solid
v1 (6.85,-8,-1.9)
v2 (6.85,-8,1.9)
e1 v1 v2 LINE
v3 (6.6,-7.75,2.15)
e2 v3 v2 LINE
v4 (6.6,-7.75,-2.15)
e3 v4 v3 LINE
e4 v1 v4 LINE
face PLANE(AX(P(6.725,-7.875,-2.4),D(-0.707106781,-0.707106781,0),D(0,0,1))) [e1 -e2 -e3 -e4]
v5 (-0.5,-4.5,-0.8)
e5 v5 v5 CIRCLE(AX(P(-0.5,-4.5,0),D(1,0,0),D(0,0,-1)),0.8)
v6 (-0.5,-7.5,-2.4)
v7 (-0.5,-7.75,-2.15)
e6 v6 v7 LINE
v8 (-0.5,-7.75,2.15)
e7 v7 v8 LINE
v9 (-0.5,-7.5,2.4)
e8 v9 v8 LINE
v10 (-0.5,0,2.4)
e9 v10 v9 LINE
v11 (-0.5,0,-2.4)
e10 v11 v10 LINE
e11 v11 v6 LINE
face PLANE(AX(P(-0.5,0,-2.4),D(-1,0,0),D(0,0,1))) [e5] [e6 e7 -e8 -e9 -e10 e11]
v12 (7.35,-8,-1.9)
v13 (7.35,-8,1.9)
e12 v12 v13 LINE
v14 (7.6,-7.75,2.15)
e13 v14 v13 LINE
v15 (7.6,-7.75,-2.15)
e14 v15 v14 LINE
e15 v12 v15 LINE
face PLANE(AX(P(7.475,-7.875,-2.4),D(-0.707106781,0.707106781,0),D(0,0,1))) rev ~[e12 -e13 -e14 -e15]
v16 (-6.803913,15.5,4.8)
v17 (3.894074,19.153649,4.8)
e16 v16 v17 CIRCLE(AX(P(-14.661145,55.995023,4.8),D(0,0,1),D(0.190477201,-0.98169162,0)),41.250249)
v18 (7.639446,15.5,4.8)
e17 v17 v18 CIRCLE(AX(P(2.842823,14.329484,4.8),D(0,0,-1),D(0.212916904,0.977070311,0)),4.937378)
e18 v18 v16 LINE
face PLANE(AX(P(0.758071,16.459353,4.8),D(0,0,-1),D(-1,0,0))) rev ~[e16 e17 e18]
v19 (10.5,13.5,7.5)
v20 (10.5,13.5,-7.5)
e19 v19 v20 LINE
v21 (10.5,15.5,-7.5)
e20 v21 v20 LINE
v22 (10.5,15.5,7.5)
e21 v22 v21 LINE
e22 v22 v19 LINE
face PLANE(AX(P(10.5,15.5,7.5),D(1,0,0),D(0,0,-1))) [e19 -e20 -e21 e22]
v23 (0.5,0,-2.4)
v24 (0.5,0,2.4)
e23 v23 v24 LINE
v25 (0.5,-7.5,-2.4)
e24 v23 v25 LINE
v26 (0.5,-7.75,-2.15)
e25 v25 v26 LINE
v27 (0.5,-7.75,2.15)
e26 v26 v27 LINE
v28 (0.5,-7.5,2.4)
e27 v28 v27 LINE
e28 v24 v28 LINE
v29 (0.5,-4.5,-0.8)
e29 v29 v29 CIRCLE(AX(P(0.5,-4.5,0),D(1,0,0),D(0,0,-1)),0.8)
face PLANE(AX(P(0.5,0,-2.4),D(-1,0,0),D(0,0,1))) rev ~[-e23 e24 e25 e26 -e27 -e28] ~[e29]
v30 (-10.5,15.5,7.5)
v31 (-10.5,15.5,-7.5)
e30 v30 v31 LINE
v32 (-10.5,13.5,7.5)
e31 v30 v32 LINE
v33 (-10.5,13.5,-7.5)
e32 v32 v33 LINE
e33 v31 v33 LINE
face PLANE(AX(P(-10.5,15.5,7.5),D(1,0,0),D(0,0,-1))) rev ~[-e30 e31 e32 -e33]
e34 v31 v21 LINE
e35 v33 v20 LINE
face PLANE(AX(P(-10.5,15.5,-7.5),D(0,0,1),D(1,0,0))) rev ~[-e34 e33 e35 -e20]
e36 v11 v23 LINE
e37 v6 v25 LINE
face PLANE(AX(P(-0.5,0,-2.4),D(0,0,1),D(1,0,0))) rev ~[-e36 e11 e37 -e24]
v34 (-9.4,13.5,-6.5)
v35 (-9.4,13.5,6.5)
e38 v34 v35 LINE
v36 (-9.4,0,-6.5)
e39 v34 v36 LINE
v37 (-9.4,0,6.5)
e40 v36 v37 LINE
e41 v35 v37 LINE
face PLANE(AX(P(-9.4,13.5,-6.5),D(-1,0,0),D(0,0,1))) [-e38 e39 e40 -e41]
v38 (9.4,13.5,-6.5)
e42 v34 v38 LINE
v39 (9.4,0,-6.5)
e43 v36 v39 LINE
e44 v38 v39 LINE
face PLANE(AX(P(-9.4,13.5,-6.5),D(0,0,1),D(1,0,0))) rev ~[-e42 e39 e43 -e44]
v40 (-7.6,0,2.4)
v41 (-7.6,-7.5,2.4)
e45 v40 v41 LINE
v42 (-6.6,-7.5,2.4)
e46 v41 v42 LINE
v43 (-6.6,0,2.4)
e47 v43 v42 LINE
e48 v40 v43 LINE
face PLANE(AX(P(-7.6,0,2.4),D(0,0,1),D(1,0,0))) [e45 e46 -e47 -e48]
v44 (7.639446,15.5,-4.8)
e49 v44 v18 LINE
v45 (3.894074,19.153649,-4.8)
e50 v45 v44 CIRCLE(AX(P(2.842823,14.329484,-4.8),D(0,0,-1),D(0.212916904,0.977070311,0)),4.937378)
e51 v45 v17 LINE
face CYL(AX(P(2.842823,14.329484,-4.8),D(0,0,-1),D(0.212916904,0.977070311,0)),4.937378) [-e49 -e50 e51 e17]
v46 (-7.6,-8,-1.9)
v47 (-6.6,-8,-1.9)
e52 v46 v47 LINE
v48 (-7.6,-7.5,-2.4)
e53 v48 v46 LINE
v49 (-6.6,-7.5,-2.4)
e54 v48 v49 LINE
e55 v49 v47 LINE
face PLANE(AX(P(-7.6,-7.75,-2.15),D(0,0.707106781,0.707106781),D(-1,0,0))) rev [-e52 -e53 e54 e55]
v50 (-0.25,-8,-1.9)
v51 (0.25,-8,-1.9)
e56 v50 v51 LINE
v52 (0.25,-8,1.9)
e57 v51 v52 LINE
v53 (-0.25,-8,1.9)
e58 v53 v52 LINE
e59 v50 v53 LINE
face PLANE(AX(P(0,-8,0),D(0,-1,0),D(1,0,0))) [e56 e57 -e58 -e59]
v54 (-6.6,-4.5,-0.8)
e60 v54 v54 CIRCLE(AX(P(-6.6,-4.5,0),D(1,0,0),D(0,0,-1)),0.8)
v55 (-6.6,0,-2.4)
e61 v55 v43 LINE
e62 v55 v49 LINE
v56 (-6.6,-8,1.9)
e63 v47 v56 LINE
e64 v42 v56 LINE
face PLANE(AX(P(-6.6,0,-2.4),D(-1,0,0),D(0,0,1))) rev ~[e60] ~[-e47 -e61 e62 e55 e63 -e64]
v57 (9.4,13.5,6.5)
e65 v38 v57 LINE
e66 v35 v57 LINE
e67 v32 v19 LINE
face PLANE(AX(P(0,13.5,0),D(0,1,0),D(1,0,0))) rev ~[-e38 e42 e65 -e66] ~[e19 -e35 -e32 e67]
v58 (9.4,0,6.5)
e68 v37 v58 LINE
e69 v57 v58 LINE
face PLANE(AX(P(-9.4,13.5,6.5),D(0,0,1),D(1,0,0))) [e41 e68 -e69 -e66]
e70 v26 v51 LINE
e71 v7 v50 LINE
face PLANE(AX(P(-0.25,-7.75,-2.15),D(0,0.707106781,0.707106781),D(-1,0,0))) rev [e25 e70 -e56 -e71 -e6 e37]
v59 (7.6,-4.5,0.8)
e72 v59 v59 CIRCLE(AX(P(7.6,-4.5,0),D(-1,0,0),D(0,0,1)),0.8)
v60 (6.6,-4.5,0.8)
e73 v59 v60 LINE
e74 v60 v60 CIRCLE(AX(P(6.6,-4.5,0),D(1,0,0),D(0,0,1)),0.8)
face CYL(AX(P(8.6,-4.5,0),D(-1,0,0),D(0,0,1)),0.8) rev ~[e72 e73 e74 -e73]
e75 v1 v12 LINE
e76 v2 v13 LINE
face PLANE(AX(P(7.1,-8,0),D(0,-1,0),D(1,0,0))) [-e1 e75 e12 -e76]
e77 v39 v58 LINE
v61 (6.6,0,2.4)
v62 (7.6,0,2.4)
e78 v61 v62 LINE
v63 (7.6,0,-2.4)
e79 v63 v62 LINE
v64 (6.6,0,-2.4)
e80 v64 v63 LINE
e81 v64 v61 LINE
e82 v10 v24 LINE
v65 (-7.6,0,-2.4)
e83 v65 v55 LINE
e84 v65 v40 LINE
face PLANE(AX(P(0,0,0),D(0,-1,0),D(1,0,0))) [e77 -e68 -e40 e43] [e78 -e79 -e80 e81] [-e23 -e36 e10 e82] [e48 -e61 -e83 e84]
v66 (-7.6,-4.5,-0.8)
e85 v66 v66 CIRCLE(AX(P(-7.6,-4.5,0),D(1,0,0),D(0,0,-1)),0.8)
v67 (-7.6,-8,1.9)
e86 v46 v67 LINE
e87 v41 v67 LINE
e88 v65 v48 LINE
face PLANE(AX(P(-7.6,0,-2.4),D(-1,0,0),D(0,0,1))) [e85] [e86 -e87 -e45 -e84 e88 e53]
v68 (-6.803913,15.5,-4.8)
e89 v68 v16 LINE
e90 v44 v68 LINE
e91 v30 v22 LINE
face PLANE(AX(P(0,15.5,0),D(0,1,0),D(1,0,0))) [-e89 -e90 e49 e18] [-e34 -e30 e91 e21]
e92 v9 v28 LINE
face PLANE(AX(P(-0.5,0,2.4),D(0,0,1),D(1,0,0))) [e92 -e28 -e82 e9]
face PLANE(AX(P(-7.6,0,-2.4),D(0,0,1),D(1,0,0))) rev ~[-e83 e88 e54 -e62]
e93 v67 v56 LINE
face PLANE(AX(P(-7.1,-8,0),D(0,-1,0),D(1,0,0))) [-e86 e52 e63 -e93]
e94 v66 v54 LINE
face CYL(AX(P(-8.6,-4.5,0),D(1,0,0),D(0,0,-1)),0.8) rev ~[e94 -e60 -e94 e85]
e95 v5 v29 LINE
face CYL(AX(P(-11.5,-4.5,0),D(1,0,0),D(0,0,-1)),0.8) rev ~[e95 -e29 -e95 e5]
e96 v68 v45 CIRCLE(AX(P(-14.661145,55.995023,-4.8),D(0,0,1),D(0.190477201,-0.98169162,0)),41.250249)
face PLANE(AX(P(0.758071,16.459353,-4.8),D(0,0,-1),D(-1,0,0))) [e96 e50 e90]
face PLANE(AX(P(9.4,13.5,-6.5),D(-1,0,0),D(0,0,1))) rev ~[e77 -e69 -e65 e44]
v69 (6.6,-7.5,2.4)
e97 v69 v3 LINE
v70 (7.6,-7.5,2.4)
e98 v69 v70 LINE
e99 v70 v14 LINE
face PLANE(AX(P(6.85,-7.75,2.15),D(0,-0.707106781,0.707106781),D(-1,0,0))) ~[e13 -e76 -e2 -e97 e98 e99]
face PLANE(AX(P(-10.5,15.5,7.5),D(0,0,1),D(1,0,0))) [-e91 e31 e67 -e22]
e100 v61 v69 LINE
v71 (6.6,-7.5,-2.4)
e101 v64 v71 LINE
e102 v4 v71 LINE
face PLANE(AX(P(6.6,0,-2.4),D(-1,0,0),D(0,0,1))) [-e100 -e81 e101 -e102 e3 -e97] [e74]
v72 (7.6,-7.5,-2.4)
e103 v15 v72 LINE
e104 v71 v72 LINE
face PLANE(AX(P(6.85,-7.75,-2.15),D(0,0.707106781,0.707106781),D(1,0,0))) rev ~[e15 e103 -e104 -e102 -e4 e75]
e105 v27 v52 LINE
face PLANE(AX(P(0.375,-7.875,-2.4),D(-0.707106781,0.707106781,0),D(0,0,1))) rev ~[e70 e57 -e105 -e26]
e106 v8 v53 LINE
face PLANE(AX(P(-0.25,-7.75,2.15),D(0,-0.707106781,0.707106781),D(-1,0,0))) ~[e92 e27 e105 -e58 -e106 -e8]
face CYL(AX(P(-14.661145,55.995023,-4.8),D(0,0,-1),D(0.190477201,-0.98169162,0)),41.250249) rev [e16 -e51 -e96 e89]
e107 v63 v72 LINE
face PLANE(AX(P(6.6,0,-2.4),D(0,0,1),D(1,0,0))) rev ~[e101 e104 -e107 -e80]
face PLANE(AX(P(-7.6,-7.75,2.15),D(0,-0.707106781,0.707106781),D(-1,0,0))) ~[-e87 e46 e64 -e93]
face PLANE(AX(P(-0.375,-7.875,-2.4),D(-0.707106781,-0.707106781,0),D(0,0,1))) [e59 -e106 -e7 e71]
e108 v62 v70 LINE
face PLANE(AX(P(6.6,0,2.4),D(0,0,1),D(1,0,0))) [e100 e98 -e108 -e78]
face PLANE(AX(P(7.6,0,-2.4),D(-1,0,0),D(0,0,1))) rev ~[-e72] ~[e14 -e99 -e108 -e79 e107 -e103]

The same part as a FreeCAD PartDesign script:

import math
import FreeCAD as App
import Part
import Sketcher
from FreeCAD import Vector


def edges_at(feature, points):
    """Names of the edges that pass closest to the given points."""
    edges = feature.Shape.Edges
    near = lambda p: min(range(len(edges)), key=lambda i: edges[i].distToShape(Part.Vertex(*p))[0])
    return sorted({f"Edge{near(p) + 1}" for p in points})


def add_polygon(sketch, points):
    """Adds a closed chain of lines whose ends are joined by coincident constraints."""
    first, n = sketch.GeometryCount, len(points)
    for a, b in zip(points, points[1:] + points[:1]):
        sketch.addGeometry(Part.LineSegment(App.Vector(*a, 0), App.Vector(*b, 0)), False)
    for i in range(n):
        sketch.addConstraint(Sketcher.Constraint("Coincident", first + i, 2, first + (i + 1) % n, 1))

doc = App.newDocument("Part")
body = doc.addObject("PartDesign::Body", "Body")

sketch1 = body.newObject("Sketcher::SketchObject", "Sketch")
sketch1.AttachmentSupport = (doc.getObject("XY_Plane"), [""])
sketch1.MapMode = "FlatFace"
sketch1.AttachmentOffset = App.Placement(Vector(0, 0, -4.8), App.Rotation())
sketch1.addGeometry(Part.LineSegment(Vector(7.639446, 15.5, 0), Vector(-6.803913, 15.5, 0)), False)
sketch1.addGeometry(Part.ArcOfCircle(Part.Circle(Vector(-14.661145, 55.995023, 0), Vector(0, 0, 1), 41.250249), math.radians(-79.019366), math.radians(-63.267814)), False)
sketch1.addGeometry(Part.ArcOfCircle(Part.Circle(Vector(2.842823, 14.329484, 0), Vector(0, 0, 1), 4.937378), math.radians(13.713817), math.radians(77.706655)), False)
sketch1.addConstraint(Sketcher.Constraint("Coincident", 0, 2, 1, 1))
sketch1.addConstraint(Sketcher.Constraint("Coincident", 1, 2, 2, 2))
sketch1.addConstraint(Sketcher.Constraint("Coincident", 2, 1, 0, 1))
sketch1.addConstraint(Sketcher.Constraint("Horizontal", 0))
sketch1.addConstraint(Sketcher.Constraint("DistanceY", -1, 1, 0, 2, 15.5))
sketch1.addConstraint(Sketcher.Constraint("Radius", 1, 41.250249))
sketch1.addConstraint(Sketcher.Constraint("Radius", 2, 4.937378))
sketch1.addConstraint(Sketcher.Constraint("DistanceX", 0, 2, 0, 1, 14.443359))
sketch1.addConstraint(Sketcher.Constraint("DistanceY", -1, 1, 1, 2, 19.153649))
sketch1.addConstraint(Sketcher.Constraint("DistanceY", 2, 3, 1, 3, 41.66554))
sketch1.addConstraint(Sketcher.Constraint("DistanceX", 1, 3, -1, 1, 14.661145))
pad1 = body.newObject("PartDesign::Pad", "Pad")
pad1.Profile = sketch1
pad1.Length = 9.6

sketch2 = body.newObject("Sketcher::SketchObject", "Sketch001")
sketch2.AttachmentSupport = (doc.getObject("XZ_Plane"), [""])
sketch2.MapMode = "FlatFace"
sketch2.AttachmentOffset = App.Placement(Vector(0, 0, -15.5), App.Rotation())
add_polygon(sketch2, [(-10.5, -7.5), (-10.5, 7.5), (10.5, 7.5), (10.5, -7.5)])
sketch2.addConstraint(Sketcher.Constraint("Vertical", 0))
sketch2.addConstraint(Sketcher.Constraint("Horizontal", 1))
sketch2.addConstraint(Sketcher.Constraint("Vertical", 2))
sketch2.addConstraint(Sketcher.Constraint("Horizontal", 3))
sketch2.addConstraint(Sketcher.Constraint("Symmetric", 0, 2, 2, 2, -1, 1))
sketch2.addConstraint(Sketcher.Constraint("DistanceX", 1, 1, 1, 2, 21.0))
sketch2.addConstraint(Sketcher.Constraint("DistanceY", 0, 1, 0, 2, 15.0))
pad2 = body.newObject("PartDesign::Pad", "Pad001")
pad2.Profile = sketch2
pad2.Length = 2

sketch3 = body.newObject("Sketcher::SketchObject", "Sketch002")
sketch3.AttachmentSupport = (doc.getObject("XZ_Plane"), [""])
sketch3.MapMode = "FlatFace"
sketch3.AttachmentOffset = App.Placement(Vector(0, 0, -13.5), App.Rotation())
add_polygon(sketch3, [(-9.4, 6.5), (-9.4, -6.5), (9.4, -6.5), (9.4, 6.5)])
sketch3.addConstraint(Sketcher.Constraint("Vertical", 0))
sketch3.addConstraint(Sketcher.Constraint("Horizontal", 1))
sketch3.addConstraint(Sketcher.Constraint("Vertical", 2))
sketch3.addConstraint(Sketcher.Constraint("Horizontal", 3))
sketch3.addConstraint(Sketcher.Constraint("Symmetric", 0, 2, 2, 2, -1, 1))
sketch3.addConstraint(Sketcher.Constraint("DistanceY", 0, 2, 0, 1, 13.0))
sketch3.addConstraint(Sketcher.Constraint("DistanceX", 1, 1, 1, 2, 18.8))
pad3 = body.newObject("PartDesign::Pad", "Pad002")
pad3.Profile = sketch3
pad3.Length = 13.5

sketch4 = body.newObject("Sketcher::SketchObject", "Sketch003")
sketch4.AttachmentSupport = (doc.getObject("XZ_Plane"), [""])
sketch4.MapMode = "FlatFace"
add_polygon(sketch4, [(-0.5, 2.4), (-0.5, -2.4), (0.5, -2.4), (0.5, 2.4)])
sketch4.addConstraint(Sketcher.Constraint("Vertical", 0))
sketch4.addConstraint(Sketcher.Constraint("Horizontal", 1))
sketch4.addConstraint(Sketcher.Constraint("Vertical", 2))
sketch4.addConstraint(Sketcher.Constraint("Horizontal", 3))
sketch4.addConstraint(Sketcher.Constraint("Symmetric", 0, 2, 2, 2, -1, 1))
sketch4.addConstraint(Sketcher.Constraint("DistanceX", 1, 1, 1, 2, 1.0))
sketch4.addConstraint(Sketcher.Constraint("DistanceY", 0, 2, 0, 1, 4.8))
pad4 = body.newObject("PartDesign::Pad", "Pad003")
pad4.Profile = sketch4
pad4.Length = 8

sketch5 = body.newObject("Sketcher::SketchObject", "Sketch004")
sketch5.AttachmentSupport = (doc.getObject("XZ_Plane"), [""])
sketch5.MapMode = "FlatFace"
add_polygon(sketch5, [(6.6, 2.4), (6.6, -2.4), (7.6, -2.4), (7.6, 2.4)])
sketch5.addConstraint(Sketcher.Constraint("Vertical", 0))
sketch5.addConstraint(Sketcher.Constraint("Horizontal", 1))
sketch5.addConstraint(Sketcher.Constraint("Vertical", 2))
sketch5.addConstraint(Sketcher.Constraint("Horizontal", 3))
sketch5.addConstraint(Sketcher.Constraint("DistanceX", 1, 1, 1, 2, 1.0))
sketch5.addConstraint(Sketcher.Constraint("DistanceY", 0, 2, 0, 1, 4.8))
sketch5.addConstraint(Sketcher.Constraint("DistanceX", -1, 1, 0, 2, 6.6))
sketch5.addConstraint(Sketcher.Constraint("DistanceY", 0, 2, -1, 1, 2.4))
pad5 = body.newObject("PartDesign::Pad", "Pad004")
pad5.Profile = sketch5
pad5.Length = 8

sketch6 = body.newObject("Sketcher::SketchObject", "Sketch005")
sketch6.AttachmentSupport = (doc.getObject("XZ_Plane"), [""])
sketch6.MapMode = "FlatFace"
add_polygon(sketch6, [(-7.6, 2.4), (-7.6, -2.4), (-6.6, -2.4), (-6.6, 2.4)])
sketch6.addConstraint(Sketcher.Constraint("Vertical", 0))
sketch6.addConstraint(Sketcher.Constraint("Horizontal", 1))
sketch6.addConstraint(Sketcher.Constraint("Vertical", 2))
sketch6.addConstraint(Sketcher.Constraint("Horizontal", 3))
sketch6.addConstraint(Sketcher.Constraint("DistanceX", 1, 1, 1, 2, 1.0))
sketch6.addConstraint(Sketcher.Constraint("DistanceY", 0, 2, 0, 1, 4.8))
sketch6.addConstraint(Sketcher.Constraint("DistanceX", 0, 2, -1, 1, 7.6))
sketch6.addConstraint(Sketcher.Constraint("DistanceY", 0, 2, -1, 1, 2.4))
pad6 = body.newObject("PartDesign::Pad", "Pad005")
pad6.Profile = sketch6
pad6.Length = 8

sketch7 = body.newObject("Sketcher::SketchObject", "Sketch006")
sketch7.AttachmentSupport = (doc.getObject("YZ_Plane"), [""])
sketch7.MapMode = "FlatFace"
sketch7.AttachmentOffset = App.Placement(Vector(0, 0, -7.6), App.Rotation())
sketch7.addGeometry(Part.Circle(Vector(-4.5, 0, 0), Vector(0, 0, 1), 0.8), False)
sketch7.addConstraint(Sketcher.Constraint("PointOnObject", 0, 3, -1))
sketch7.addConstraint(Sketcher.Constraint("Diameter", 0, 1.6))
sketch7.addConstraint(Sketcher.Constraint("DistanceX", 0, 3, -1, 1, 4.5))
doc.recompute()
hole = body.newObject("PartDesign::Hole", "Hole")
hole.Profile = sketch7
hole.ThreadType = "None"
hole.Diameter = 1.6
hole.DepthType = "Dimension"
hole.Depth = 1
hole.DrillPoint = "Flat"
hole.Reversed = True

sketch8 = body.newObject("Sketcher::SketchObject", "Sketch007")
sketch8.AttachmentSupport = (doc.getObject("YZ_Plane"), [""])
sketch8.MapMode = "FlatFace"
sketch8.AttachmentOffset = App.Placement(Vector(0, 0, 7.6), App.Rotation())
sketch8.addGeometry(Part.Circle(Vector(-4.5, 0, 0), Vector(0, 0, 1), 0.8), False)
sketch8.addConstraint(Sketcher.Constraint("PointOnObject", 0, 3, -1))
sketch8.addConstraint(Sketcher.Constraint("Diameter", 0, 1.6))
sketch8.addConstraint(Sketcher.Constraint("DistanceX", 0, 3, -1, 1, 4.5))
doc.recompute()
hole2 = body.newObject("PartDesign::Hole", "Hole001")
hole2.Profile = sketch8
hole2.ThreadType = "None"
hole2.Diameter = 1.6
hole2.DepthType = "Dimension"
hole2.Depth = 1
hole2.DrillPoint = "Flat"

sketch9 = body.newObject("Sketcher::SketchObject", "Sketch008")
sketch9.AttachmentSupport = (doc.getObject("YZ_Plane"), [""])
sketch9.MapMode = "FlatFace"
sketch9.AttachmentOffset = App.Placement(Vector(0, 0, -0.5), App.Rotation())
sketch9.addGeometry(Part.Circle(Vector(-4.5, 0, 0), Vector(0, 0, 1), 0.8), False)
sketch9.addConstraint(Sketcher.Constraint("PointOnObject", 0, 3, -1))
sketch9.addConstraint(Sketcher.Constraint("Diameter", 0, 1.6))
sketch9.addConstraint(Sketcher.Constraint("DistanceX", 0, 3, -1, 1, 4.5))
doc.recompute()
hole3 = body.newObject("PartDesign::Hole", "Hole002")
hole3.Profile = sketch9
hole3.ThreadType = "None"
hole3.Diameter = 1.6
hole3.DepthType = "Dimension"
hole3.Depth = 11
hole3.DrillPoint = "Flat"
hole3.Reversed = True
doc.recompute()

chamfer = body.newObject("PartDesign::Chamfer", "Chamfer")
chamfer.Base = (hole3, edges_at(hole3, [
    (-0.5, -8, 0),
    (0.5, -8, 0),
    (6.6, -8, 0),
    (7.6, -8, 0),
]))
chamfer.Size = 0.25
doc.recompute()

chamfer2 = body.newObject("PartDesign::Chamfer", "Chamfer001")
chamfer2.Base = (chamfer, edges_at(chamfer, [
    (7.1, -8, 2.4),
    (-7.1, -8, -2.4),
    (7.1, -8, -2.4),
    (0, -8, -2.4),
    (-7.1, -8, 2.4),
    (0, -8, 2.4),
]))
chamfer2.Size = 0.5

doc.recompute()
